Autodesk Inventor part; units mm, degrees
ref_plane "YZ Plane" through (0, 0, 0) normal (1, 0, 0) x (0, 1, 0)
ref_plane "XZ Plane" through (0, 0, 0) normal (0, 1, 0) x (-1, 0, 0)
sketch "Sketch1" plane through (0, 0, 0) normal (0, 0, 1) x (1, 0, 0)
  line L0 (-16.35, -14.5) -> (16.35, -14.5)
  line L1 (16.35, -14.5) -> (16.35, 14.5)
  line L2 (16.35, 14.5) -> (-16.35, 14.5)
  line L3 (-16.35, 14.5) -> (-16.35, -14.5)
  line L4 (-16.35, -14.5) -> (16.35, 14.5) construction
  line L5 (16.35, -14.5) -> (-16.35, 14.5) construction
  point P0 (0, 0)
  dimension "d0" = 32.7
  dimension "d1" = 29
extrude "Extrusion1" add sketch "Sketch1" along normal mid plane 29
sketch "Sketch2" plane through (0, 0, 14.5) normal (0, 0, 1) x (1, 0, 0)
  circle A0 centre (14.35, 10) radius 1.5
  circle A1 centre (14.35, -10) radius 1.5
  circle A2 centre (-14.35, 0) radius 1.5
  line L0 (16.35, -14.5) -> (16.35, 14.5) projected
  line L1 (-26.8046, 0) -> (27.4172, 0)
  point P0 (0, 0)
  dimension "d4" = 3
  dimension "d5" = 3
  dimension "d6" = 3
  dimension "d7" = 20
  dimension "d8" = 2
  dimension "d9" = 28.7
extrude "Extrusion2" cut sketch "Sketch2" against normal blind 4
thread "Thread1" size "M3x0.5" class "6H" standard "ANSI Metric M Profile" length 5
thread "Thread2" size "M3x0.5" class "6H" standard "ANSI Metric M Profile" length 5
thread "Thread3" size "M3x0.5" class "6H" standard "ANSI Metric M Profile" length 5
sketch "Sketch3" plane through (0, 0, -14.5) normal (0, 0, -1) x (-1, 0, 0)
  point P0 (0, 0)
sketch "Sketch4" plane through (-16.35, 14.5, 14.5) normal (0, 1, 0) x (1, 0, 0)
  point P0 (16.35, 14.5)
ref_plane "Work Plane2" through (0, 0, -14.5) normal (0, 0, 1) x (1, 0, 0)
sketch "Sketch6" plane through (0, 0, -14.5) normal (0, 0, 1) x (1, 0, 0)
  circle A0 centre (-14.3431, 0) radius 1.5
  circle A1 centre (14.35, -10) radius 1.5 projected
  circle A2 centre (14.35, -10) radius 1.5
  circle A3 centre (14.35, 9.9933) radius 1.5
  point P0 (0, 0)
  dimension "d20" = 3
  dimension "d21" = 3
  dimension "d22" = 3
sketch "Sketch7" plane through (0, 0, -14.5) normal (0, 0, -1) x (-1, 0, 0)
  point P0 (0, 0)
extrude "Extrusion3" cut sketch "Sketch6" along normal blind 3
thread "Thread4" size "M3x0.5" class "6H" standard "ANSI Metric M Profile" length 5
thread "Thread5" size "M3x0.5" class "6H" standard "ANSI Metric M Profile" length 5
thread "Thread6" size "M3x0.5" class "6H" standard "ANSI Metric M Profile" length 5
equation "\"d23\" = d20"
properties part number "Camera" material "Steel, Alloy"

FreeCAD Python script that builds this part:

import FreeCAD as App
import Part
import Sketcher
from FreeCAD import Vector
Q = App.Units.Quantity


def add_polygon(sketch, points):
    """Adds a closed chain of lines whose ends are joined by coincident constraints."""
    first, n = sketch.GeometryCount, len(points)
    for a, b in zip(points, points[1:] + points[:1]):
        sketch.addGeometry(Part.LineSegment(App.Vector(*a, 0), App.Vector(*b, 0)), False)
    for i in range(n):
        sketch.addConstraint(Sketcher.Constraint("Coincident", first + i, 2, first + (i + 1) % n, 1))

doc = App.newDocument("Part")
body = doc.addObject("PartDesign::Body", "Body")

# Sketch on XY plane
sketch1 = doc.addObject("Sketcher::SketchObject", "Sketch")
body.addObject(sketch1)
sketch1.AttachmentSupport = (doc.XY_Plane, [""])
sketch1.MapMode = "FlatFace"
add_polygon(sketch1, [(-16, 14), (-16, -14), (16, -14), (16, 14)])  # lines 0-3
sketch1.addConstraint([
    Sketcher.Constraint("Vertical", 0),
    Sketcher.Constraint("Horizontal", 1),
    Sketcher.Constraint("Vertical", 2),
    Sketcher.Constraint("Horizontal", 3),
    Sketcher.Constraint("Symmetric", 0, 2, 2, 2, -1, 1),
    Sketcher.Constraint("DistanceY", 0, 2, 0, 1, Q("29 mm")),
    Sketcher.Constraint("DistanceX", 1, 1, 1, 2, Q("32.7 mm")),
])
pad1 = doc.addObject("PartDesign::Pad", "Pad")
body.addObject(pad1)
pad1.Profile = sketch1
pad1.Length = 29
pad1.Midplane = True

# Sketch on XY plane
sketch2 = doc.addObject("Sketcher::SketchObject", "Sketch001")
body.addObject(sketch2)
sketch2.AttachmentSupport = (doc.XY_Plane, [""])
sketch2.MapMode = "FlatFace"
sketch2.AttachmentOffset = App.Placement(Vector(0, 0, 14.5), App.Rotation())
sketch2.addGeometry([
    Part.Circle(Vector(14.3, 10, 0), Vector(0, 0, 1), 1.5),
    Part.Circle(Vector(14.3, -10, 0), Vector(0, 0, 1), 1.5),
    Part.Circle(Vector(-14.3, 0, 0), Vector(0, 0, 1), 1.5),
], False)
sketch2.addConstraint([
    Sketcher.Constraint("Equal", 0, 1),
    Sketcher.Constraint("Equal", 1, 2),
    Sketcher.Constraint("Symmetric", 0, 3, 1, 3, -1),
    Sketcher.Constraint("PointOnObject", 2, 3, -1),
    Sketcher.Constraint("Diameter", 0, Q("3 mm")),
    Sketcher.Constraint("DistanceY", 1, 3, 0, 3, Q("20 mm")),
    Sketcher.Constraint("DistanceX", 2, 3, 0, 3, Q("28.7 mm")),
    Sketcher.Constraint("DistanceX", -1, 1, 0, 3, Q("14.35 mm")),
])
pocket1 = doc.addObject("PartDesign::Pocket", "Pocket")
body.addObject(pocket1)
pocket1.Profile = sketch2
pocket1.Length = 4

# Sketch on XY plane
sketch3 = doc.addObject("Sketcher::SketchObject", "Sketch002")
body.addObject(sketch3)
sketch3.AttachmentSupport = (doc.XY_Plane, [""])
sketch3.MapMode = "FlatFace"
sketch3.AttachmentOffset = App.Placement(Vector(0, 0, -14.5), App.Rotation())
sketch3.addGeometry([
    Part.Circle(Vector(-14.3, 0, 0), Vector(0, 0, 1), 1.5),
    Part.Circle(Vector(14.3, -10, 0), Vector(0, 0, 1), 1.5),
    Part.Circle(Vector(14.3, 10, 0), Vector(0, 0, 1), 1.5),
], False)
sketch3.addConstraint([
    Sketcher.Constraint("Equal", 0, 1),
    Sketcher.Constraint("Equal", 1, 2),
    Sketcher.Constraint("PointOnObject", 0, 3, -1),
    Sketcher.Constraint("Vertical", 1, 3, 2, 3),
    Sketcher.Constraint("Diameter", 0, Q("3 mm")),
    Sketcher.Constraint("DistanceY", 1, 3, -1, 1, Q("10 mm")),
    Sketcher.Constraint("DistanceX", -1, 1, 1, 3, Q("14.35 mm")),
    Sketcher.Constraint("DistanceX", 0, 3, -1, 1, Q("14.343 mm")),
    Sketcher.Constraint("DistanceY", -1, 1, 2, 3, Q("9.9933 mm")),
])
pocket2 = doc.addObject("PartDesign::Pocket", "Pocket001")
body.addObject(pocket2)
pocket2.Profile = sketch3
pocket2.Length = 3
pocket2.Reversed = True

doc.recompute()
